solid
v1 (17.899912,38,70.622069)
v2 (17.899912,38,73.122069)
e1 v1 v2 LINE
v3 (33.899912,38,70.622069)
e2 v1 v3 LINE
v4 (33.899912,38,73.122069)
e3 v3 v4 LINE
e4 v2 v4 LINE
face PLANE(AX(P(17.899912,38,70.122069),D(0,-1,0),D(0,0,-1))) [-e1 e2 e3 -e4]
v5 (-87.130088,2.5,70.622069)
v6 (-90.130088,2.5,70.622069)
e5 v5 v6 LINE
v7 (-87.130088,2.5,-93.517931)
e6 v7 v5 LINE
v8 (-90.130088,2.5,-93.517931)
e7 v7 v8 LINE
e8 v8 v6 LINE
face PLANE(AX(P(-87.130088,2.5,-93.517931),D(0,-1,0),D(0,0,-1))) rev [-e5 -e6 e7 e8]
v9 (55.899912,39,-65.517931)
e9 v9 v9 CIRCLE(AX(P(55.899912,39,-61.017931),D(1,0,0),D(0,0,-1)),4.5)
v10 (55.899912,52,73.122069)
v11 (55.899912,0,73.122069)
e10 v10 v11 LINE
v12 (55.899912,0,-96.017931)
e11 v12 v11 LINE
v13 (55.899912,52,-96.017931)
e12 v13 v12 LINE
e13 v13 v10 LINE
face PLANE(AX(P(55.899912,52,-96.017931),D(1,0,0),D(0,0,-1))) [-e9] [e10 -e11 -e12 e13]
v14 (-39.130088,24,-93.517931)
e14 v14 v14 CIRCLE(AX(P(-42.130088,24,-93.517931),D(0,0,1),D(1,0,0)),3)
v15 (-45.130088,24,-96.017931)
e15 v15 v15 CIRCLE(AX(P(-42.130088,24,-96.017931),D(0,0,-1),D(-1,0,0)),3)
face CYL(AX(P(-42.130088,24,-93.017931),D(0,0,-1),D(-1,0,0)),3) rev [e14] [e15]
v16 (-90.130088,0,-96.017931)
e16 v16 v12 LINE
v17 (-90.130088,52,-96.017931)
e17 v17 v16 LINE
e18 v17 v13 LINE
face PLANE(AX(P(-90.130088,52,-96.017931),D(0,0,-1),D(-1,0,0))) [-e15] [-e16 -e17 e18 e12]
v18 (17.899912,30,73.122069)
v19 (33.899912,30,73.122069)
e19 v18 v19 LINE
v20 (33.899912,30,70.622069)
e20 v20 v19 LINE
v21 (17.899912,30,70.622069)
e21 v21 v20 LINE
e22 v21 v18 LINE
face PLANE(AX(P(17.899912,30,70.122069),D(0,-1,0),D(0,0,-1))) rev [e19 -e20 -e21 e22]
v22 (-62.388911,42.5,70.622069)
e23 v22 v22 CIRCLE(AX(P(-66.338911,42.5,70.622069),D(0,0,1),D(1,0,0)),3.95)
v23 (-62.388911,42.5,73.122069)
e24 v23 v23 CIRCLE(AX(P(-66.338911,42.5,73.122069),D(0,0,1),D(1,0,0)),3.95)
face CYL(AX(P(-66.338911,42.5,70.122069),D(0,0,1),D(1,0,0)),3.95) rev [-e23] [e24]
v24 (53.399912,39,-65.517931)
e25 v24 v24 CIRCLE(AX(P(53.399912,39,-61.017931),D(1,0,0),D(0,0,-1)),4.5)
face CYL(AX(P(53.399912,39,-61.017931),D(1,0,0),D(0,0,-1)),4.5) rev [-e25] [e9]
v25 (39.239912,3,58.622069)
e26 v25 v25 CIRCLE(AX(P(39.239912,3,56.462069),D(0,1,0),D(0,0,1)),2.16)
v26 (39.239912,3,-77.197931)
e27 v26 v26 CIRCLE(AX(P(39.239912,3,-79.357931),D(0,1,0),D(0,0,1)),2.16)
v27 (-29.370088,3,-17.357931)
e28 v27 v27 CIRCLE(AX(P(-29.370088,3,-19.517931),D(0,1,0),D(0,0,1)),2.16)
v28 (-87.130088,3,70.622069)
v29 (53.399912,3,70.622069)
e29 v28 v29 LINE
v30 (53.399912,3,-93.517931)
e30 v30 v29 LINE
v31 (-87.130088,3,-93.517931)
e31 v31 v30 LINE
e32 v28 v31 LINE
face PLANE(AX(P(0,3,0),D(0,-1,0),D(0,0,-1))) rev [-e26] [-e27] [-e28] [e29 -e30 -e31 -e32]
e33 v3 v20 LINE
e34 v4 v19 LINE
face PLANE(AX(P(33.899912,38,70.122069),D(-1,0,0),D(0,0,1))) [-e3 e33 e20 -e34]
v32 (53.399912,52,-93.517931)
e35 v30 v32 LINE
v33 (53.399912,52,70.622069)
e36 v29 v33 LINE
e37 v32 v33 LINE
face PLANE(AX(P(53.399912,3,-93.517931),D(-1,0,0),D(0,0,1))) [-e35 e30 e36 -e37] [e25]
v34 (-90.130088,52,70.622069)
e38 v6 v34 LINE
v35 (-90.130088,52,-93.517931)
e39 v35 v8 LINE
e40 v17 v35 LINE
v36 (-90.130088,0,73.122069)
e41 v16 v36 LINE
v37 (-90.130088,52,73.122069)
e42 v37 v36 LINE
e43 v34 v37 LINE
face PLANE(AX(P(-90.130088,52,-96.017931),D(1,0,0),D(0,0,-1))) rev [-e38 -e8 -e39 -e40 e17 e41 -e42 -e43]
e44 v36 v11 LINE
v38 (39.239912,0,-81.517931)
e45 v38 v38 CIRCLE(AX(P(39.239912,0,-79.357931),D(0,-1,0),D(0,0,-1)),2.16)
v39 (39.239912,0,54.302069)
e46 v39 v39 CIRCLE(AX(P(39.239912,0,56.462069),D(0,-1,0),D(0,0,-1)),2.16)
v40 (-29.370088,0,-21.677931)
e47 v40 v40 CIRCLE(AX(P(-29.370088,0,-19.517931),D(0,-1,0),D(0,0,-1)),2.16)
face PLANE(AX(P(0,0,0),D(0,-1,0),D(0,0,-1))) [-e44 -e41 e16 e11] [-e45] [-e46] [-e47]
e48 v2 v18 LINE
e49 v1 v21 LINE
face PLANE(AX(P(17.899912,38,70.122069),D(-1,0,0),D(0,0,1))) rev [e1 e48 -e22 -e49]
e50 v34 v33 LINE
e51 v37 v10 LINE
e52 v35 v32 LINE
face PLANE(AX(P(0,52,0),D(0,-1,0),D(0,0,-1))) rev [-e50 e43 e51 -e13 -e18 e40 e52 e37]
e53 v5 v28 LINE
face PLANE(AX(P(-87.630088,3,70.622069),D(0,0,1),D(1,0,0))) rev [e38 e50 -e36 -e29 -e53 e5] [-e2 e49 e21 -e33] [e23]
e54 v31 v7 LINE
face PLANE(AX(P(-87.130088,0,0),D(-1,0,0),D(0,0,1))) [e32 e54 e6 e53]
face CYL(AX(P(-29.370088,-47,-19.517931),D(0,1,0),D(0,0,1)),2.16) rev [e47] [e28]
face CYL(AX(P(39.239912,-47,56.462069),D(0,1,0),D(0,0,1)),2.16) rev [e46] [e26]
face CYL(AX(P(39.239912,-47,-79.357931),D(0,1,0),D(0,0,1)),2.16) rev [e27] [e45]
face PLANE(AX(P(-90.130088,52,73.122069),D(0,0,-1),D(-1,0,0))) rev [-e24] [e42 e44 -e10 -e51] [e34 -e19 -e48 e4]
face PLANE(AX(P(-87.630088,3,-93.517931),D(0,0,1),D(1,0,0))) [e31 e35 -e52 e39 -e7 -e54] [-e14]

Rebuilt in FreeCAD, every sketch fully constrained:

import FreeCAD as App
import Part
import Sketcher
from FreeCAD import Vector

doc = App.newDocument("Part")
body = doc.addObject("PartDesign::Body", "Body")

sketch1 = body.newObject("Sketcher::SketchObject", "Sketch")
sketch1.AttachmentSupport = (doc.getObject("XZ_Plane"), [""])
sketch1.MapMode = "FlatFace"
sketch1.addGeometry(Part.LineSegment(Vector(-90, -96, 0), Vector(-90, 73, 0)), False)
sketch1.addGeometry(Part.LineSegment(Vector(-90, 73, 0), Vector(56, 73, 0)), False)
sketch1.addGeometry(Part.LineSegment(Vector(56, 73, 0), Vector(56, -96, 0)), False)
sketch1.addGeometry(Part.LineSegment(Vector(56, -96, 0), Vector(-90, -96, 0)), False)
sketch1.addConstraint(Sketcher.Constraint("Coincident", 0, 2, 1, 1))
sketch1.addConstraint(Sketcher.Constraint("Coincident", 1, 2, 2, 1))
sketch1.addConstraint(Sketcher.Constraint("Coincident", 2, 2, 3, 1))
sketch1.addConstraint(Sketcher.Constraint("Coincident", 3, 2, 0, 1))
sketch1.addConstraint(Sketcher.Constraint("Vertical", 0))
sketch1.addConstraint(Sketcher.Constraint("Horizontal", 1))
sketch1.addConstraint(Sketcher.Constraint("Vertical", 2))
sketch1.addConstraint(Sketcher.Constraint("Horizontal", 3))
sketch1.addConstraint(Sketcher.Constraint("DistanceX", 1, 1, 1, 2, 146.03))
sketch1.addConstraint(Sketcher.Constraint("DistanceY", 0, 1, 0, 2, 169.14))
sketch1.addConstraint(Sketcher.Constraint("DistanceX", 0, 2, -1, 1, 90.130088))
sketch1.addConstraint(Sketcher.Constraint("DistanceY", -1, 1, 0, 2, 73.122069))
pad1 = body.newObject("PartDesign::Pad", "Pad")
pad1.Profile = sketch1
pad1.Length = 52
pad1.Reversed = True

sketch2 = body.newObject("Sketcher::SketchObject", "Sketch001")
sketch2.AttachmentSupport = (doc.getObject("XZ_Plane"), [""])
sketch2.MapMode = "FlatFace"
sketch2.AttachmentOffset = App.Placement(Vector(0, 0, -52), App.Rotation())
sketch2.addGeometry(Part.LineSegment(Vector(-88, -94, 0), Vector(-88, 71, 0)), False)
sketch2.addGeometry(Part.LineSegment(Vector(-88, 71, 0), Vector(53, 71, 0)), False)
sketch2.addGeometry(Part.LineSegment(Vector(53, 71, 0), Vector(53, -94, 0)), False)
sketch2.addGeometry(Part.LineSegment(Vector(53, -94, 0), Vector(-88, -94, 0)), False)
sketch2.addConstraint(Sketcher.Constraint("Coincident", 0, 2, 1, 1))
sketch2.addConstraint(Sketcher.Constraint("Coincident", 1, 2, 2, 1))
sketch2.addConstraint(Sketcher.Constraint("Coincident", 2, 2, 3, 1))
sketch2.addConstraint(Sketcher.Constraint("Coincident", 3, 2, 0, 1))
sketch2.addConstraint(Sketcher.Constraint("Vertical", 0))
sketch2.addConstraint(Sketcher.Constraint("Horizontal", 1))
sketch2.addConstraint(Sketcher.Constraint("Vertical", 2))
sketch2.addConstraint(Sketcher.Constraint("Horizontal", 3))
sketch2.addConstraint(Sketcher.Constraint("DistanceX", 1, 1, 1, 2, 141.03))
sketch2.addConstraint(Sketcher.Constraint("DistanceY", 0, 1, 0, 2, 164.14))
sketch2.addConstraint(Sketcher.Constraint("DistanceX", 0, 2, -1, 1, 87.630088))
sketch2.addConstraint(Sketcher.Constraint("DistanceY", -1, 1, 0, 2, 70.622069))
pocket1 = body.newObject("PartDesign::Pocket", "Pocket")
pocket1.Profile = sketch2
pocket1.Length = 49
pocket1.Reversed = True

sketch3 = body.newObject("Sketcher::SketchObject", "Sketch002")
sketch3.AttachmentSupport = (doc.getObject("XZ_Plane"), [""])
sketch3.MapMode = "FlatFace"
sketch3.AttachmentOffset = App.Placement(Vector(0, 0, -3), App.Rotation())
sketch3.addGeometry(Part.Circle(Vector(39.2, 56.5, 0), Vector(0, 0, 1), 2.2), False)
sketch3.addGeometry(Part.Circle(Vector(39.2, -79.4, 0), Vector(0, 0, 1), 2.2), False)
sketch3.addGeometry(Part.Circle(Vector(-29.4, -19.5, 0), Vector(0, 0, 1), 2.2), False)
sketch3.addConstraint(Sketcher.Constraint("Equal", 0, 1))
sketch3.addConstraint(Sketcher.Constraint("Equal", 1, 2))
sketch3.addConstraint(Sketcher.Constraint("Vertical", 0, 3, 1, 3))
sketch3.addConstraint(Sketcher.Constraint("Diameter", 0, 4.32))
sketch3.addConstraint(Sketcher.Constraint("DistanceY", 1, 3, 0, 3, 135.82))
sketch3.addConstraint(Sketcher.Constraint("DistanceX", 2, 3, 1, 3, 68.61))
sketch3.addConstraint(Sketcher.Constraint("DistanceY", 1, 3, 2, 3, 59.84))
sketch3.addConstraint(Sketcher.Constraint("DistanceX", -1, 1, 0, 3, 39.239912))
sketch3.addConstraint(Sketcher.Constraint("DistanceY", -1, 1, 0, 3, 56.462069))
pocket2 = body.newObject("PartDesign::Pocket", "Pocket001")
pocket2.Profile = sketch3
pocket2.Length = 50
pocket2.Reversed = True

sketch4 = body.newObject("Sketcher::SketchObject", "Sketch003")
sketch4.AttachmentSupport = (doc.getObject("YZ_Plane"), [""])
sketch4.MapMode = "FlatFace"
sketch4.AttachmentOffset = App.Placement(Vector(0, 0, 55.899912), App.Rotation())
sketch4.addGeometry(Part.Circle(Vector(39, -61, 0), Vector(0, 0, 1), 4.5), False)
sketch4.addConstraint(Sketcher.Constraint("Diameter", 0, 9.0))
sketch4.addConstraint(Sketcher.Constraint("DistanceX", -1, 1, 0, 3, 39.0))
sketch4.addConstraint(Sketcher.Constraint("DistanceY", 0, 3, -1, 1, 61.017931))
pocket3 = body.newObject("PartDesign::Pocket", "Pocket002")
pocket3.Profile = sketch4
pocket3.Length = 2.5

sketch5 = body.newObject("Sketcher::SketchObject", "Sketch004")
sketch5.AttachmentSupport = (doc.getObject("XY_Plane"), [""])
sketch5.MapMode = "FlatFace"
sketch5.AttachmentOffset = App.Placement(Vector(0, 0, 73.122069), App.Rotation())
sketch5.addGeometry(Part.LineSegment(Vector(18, 38, 0), Vector(18, 30, 0)), False)
sketch5.addGeometry(Part.LineSegment(Vector(18, 30, 0), Vector(34, 30, 0)), False)
sketch5.addGeometry(Part.LineSegment(Vector(34, 30, 0), Vector(34, 38, 0)), False)
sketch5.addGeometry(Part.LineSegment(Vector(34, 38, 0), Vector(18, 38, 0)), False)
sketch5.addConstraint(Sketcher.Constraint("Coincident", 0, 2, 1, 1))
sketch5.addConstraint(Sketcher.Constraint("Coincident", 1, 2, 2, 1))
sketch5.addConstraint(Sketcher.Constraint("Coincident", 2, 2, 3, 1))
sketch5.addConstraint(Sketcher.Constraint("Coincident", 3, 2, 0, 1))
sketch5.addConstraint(Sketcher.Constraint("Vertical", 0))
sketch5.addConstraint(Sketcher.Constraint("Horizontal", 1))
sketch5.addConstraint(Sketcher.Constraint("Vertical", 2))
sketch5.addConstraint(Sketcher.Constraint("Horizontal", 3))
sketch5.addConstraint(Sketcher.Constraint("DistanceX", 1, 1, 1, 2, 16.0))
sketch5.addConstraint(Sketcher.Constraint("DistanceY", 0, 2, 0, 1, 8.0))
sketch5.addConstraint(Sketcher.Constraint("DistanceY", -1, 1, 0, 2, 30.0))
sketch5.addConstraint(Sketcher.Constraint("DistanceX", -1, 1, 0, 2, 17.899912))
pocket4 = body.newObject("PartDesign::Pocket", "Pocket003")
pocket4.Profile = sketch5
pocket4.Length = 3

sketch6 = body.newObject("Sketcher::SketchObject", "Sketch005")
sketch6.AttachmentSupport = (doc.getObject("YZ_Plane"), [""])
sketch6.MapMode = "FlatFace"
sketch6.AttachmentOffset = App.Placement(Vector(0, 0, -90.130088), App.Rotation())
sketch6.addGeometry(Part.LineSegment(Vector(52, -94, 0), Vector(2, -94, 0)), False)
sketch6.addGeometry(Part.LineSegment(Vector(2, -94, 0), Vector(2, 71, 0)), False)
sketch6.addGeometry(Part.LineSegment(Vector(2, 71, 0), Vector(52, 71, 0)), False)
sketch6.addGeometry(Part.LineSegment(Vector(52, 71, 0), Vector(52, -94, 0)), False)
sketch6.addConstraint(Sketcher.Constraint("Coincident", 0, 2, 1, 1))
sketch6.addConstraint(Sketcher.Constraint("Coincident", 1, 2, 2, 1))
sketch6.addConstraint(Sketcher.Constraint("Coincident", 2, 2, 3, 1))
sketch6.addConstraint(Sketcher.Constraint("Coincident", 3, 2, 0, 1))
sketch6.addConstraint(Sketcher.Constraint("Horizontal", 0))
sketch6.addConstraint(Sketcher.Constraint("Vertical", 1))
sketch6.addConstraint(Sketcher.Constraint("Horizontal", 2))
sketch6.addConstraint(Sketcher.Constraint("Vertical", 3))
sketch6.addConstraint(Sketcher.Constraint("DistanceX", 0, 2, 0, 1, 49.5))
sketch6.addConstraint(Sketcher.Constraint("DistanceX", -1, 1, 2, 2, 52.0))
sketch6.addConstraint(Sketcher.Constraint("DistanceY", 1, 1, 1, 2, 164.14))
sketch6.addConstraint(Sketcher.Constraint("DistanceY", 0, 2, -1, 1, 93.517931))
pocket5 = body.newObject("PartDesign::Pocket", "Pocket004")
pocket5.Profile = sketch6
pocket5.Length = 3
pocket5.Reversed = True

sketch7 = body.newObject("Sketcher::SketchObject", "Sketch006")
sketch7.AttachmentSupport = (doc.getObject("XY_Plane"), [""])
sketch7.MapMode = "FlatFace"
sketch7.AttachmentOffset = App.Placement(Vector(0, 0, 73.122069), App.Rotation())
sketch7.addGeometry(Part.Circle(Vector(-66.3, 42.5, 0), Vector(0, 0, 1), 4), False)
sketch7.addConstraint(Sketcher.Constraint("Diameter", 0, 7.9))
sketch7.addConstraint(Sketcher.Constraint("DistanceY", -1, 1, 0, 3, 42.5))
sketch7.addConstraint(Sketcher.Constraint("DistanceX", 0, 3, -1, 1, 66.338911))
pocket6 = body.newObject("PartDesign::Pocket", "Pocket005")
pocket6.Profile = sketch7
pocket6.Length = 3

sketch8 = body.newObject("Sketcher::SketchObject", "Sketch007")
sketch8.AttachmentSupport = (doc.getObject("XY_Plane"), [""])
sketch8.MapMode = "FlatFace"
sketch8.AttachmentOffset = App.Placement(Vector(0, 0, -96.017931), App.Rotation())
sketch8.addGeometry(Part.Circle(Vector(-42.1, 24, 0), Vector(0, 0, 1), 3), False)
sketch8.addConstraint(Sketcher.Constraint("Diameter", 0, 6.0))
sketch8.addConstraint(Sketcher.Constraint("DistanceY", -1, 1, 0, 3, 24.0))
sketch8.addConstraint(Sketcher.Constraint("DistanceX", 0, 3, -1, 1, 42.130088))
pocket7 = body.newObject("PartDesign::Pocket", "Pocket006")
pocket7.Profile = sketch8
pocket7.Length = 3
pocket7.Reversed = True

doc.recompute()
